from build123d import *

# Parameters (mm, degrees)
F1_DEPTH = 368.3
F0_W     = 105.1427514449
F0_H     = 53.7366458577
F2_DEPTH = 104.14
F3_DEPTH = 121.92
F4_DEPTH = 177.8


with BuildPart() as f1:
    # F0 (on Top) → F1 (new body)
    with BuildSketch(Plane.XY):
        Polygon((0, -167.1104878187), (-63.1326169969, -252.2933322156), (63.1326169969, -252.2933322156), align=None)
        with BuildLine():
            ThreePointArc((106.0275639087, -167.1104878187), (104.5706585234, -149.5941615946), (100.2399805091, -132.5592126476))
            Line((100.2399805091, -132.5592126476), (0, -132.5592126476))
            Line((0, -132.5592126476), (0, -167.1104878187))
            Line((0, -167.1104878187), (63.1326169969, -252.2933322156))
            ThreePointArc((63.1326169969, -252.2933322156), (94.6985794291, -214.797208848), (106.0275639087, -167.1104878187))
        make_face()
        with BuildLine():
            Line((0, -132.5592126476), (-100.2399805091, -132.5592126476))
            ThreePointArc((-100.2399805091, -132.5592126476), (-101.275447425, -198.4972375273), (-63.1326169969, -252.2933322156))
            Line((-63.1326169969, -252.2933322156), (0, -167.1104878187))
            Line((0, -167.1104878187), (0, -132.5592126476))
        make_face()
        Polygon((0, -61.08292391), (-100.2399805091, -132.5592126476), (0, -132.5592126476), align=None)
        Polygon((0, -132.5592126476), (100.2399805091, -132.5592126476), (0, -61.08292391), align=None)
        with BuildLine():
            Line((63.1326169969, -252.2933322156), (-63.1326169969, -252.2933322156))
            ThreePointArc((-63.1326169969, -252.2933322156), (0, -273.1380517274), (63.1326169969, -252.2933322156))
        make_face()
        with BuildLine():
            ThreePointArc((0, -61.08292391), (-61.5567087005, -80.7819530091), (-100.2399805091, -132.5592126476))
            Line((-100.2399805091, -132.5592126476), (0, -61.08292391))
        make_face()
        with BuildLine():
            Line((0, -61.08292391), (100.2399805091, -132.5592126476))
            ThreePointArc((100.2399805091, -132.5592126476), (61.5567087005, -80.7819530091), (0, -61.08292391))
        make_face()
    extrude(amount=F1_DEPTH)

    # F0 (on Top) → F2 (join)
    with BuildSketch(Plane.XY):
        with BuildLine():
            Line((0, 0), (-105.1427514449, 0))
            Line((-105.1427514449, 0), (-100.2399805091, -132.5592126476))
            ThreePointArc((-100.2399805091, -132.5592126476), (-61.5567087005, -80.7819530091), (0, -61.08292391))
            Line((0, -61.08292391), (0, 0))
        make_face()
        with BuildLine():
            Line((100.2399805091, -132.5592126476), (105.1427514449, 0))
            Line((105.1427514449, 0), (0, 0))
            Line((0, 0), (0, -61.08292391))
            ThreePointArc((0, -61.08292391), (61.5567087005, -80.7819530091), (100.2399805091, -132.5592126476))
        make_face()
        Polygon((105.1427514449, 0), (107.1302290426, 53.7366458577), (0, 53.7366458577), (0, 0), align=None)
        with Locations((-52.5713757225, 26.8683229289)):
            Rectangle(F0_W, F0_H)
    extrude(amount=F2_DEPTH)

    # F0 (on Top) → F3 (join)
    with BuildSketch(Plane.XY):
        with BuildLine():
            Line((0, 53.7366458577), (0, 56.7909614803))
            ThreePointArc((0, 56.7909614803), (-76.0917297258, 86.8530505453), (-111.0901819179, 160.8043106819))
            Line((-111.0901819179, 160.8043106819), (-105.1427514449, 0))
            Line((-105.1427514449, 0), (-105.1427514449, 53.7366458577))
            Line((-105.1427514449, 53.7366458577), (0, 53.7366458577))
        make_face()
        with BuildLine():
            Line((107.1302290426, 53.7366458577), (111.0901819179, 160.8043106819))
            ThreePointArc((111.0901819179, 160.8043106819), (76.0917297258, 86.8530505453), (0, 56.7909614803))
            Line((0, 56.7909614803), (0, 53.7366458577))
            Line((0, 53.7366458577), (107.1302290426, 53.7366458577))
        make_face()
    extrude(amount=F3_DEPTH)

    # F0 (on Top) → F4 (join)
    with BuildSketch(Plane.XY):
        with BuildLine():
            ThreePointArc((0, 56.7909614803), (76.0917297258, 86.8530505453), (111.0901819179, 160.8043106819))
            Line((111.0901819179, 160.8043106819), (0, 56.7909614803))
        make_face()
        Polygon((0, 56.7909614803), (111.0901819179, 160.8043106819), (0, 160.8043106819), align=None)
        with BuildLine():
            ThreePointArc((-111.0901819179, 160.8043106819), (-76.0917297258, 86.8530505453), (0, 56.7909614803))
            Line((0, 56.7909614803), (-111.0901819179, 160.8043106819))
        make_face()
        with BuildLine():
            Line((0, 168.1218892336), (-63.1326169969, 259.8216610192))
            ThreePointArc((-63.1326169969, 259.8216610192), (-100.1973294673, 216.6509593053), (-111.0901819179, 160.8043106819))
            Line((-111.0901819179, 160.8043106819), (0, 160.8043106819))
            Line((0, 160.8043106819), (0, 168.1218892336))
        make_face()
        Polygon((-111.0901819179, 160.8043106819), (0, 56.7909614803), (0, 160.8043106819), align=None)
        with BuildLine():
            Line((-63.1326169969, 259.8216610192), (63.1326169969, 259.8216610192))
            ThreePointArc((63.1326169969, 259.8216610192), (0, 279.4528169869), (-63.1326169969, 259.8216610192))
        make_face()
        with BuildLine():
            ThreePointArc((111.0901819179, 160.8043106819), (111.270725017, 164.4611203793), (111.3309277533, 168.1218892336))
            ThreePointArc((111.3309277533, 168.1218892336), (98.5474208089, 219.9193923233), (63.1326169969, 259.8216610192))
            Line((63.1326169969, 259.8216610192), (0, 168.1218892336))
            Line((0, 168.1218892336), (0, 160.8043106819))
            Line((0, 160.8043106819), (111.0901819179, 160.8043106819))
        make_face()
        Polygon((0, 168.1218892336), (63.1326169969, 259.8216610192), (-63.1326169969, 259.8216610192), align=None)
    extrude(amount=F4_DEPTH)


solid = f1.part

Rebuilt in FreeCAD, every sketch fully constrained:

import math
import FreeCAD as App
import Part
import Sketcher
Q = App.Units.Quantity

doc = App.newDocument("Part")
body = doc.addObject("PartDesign::Body", "Body")

sketch1 = doc.addObject("Sketcher::SketchObject", "Sketch")
body.addObject(sketch1)
sketch1.AttachmentSupport = (doc.XY_Plane, [""])
sketch1.MapMode = "FlatFace"
sketch1.addGeometry([
    Part.ArcOfCircle(Part.Circle(App.Vector(0, -167.110488, 0), App.Vector(0, 0, 1), 106.027564), math.radians(-53.456288), math.radians(0)),
    Part.ArcOfCircle(Part.Circle(App.Vector(0, -167.110488, 0), App.Vector(0, 0, 1), 106.027564), math.radians(0), math.radians(19.018334)),
    Part.ArcOfCircle(Part.Circle(App.Vector(0, -167.110488, 0), App.Vector(0, 0, 1), 106.027564), math.radians(19.018334), math.radians(160.981666)),
    Part.ArcOfCircle(Part.Circle(App.Vector(0, -167.110488, 0), App.Vector(0, 0, 1), 106.027564), math.radians(160.981666), math.radians(233.456288)),
    Part.ArcOfCircle(Part.Circle(App.Vector(0, -167.110488, 0), App.Vector(0, 0, 1), 106.027564), math.radians(-126.543712), math.radians(-53.456288)),
], False)
sketch1.addConstraint([
    Sketcher.Constraint("Tangent", 0, 2, 1, 1),
    Sketcher.Constraint("Tangent", 1, 2, 2, 1),
    Sketcher.Constraint("Tangent", 2, 2, 3, 1),
    Sketcher.Constraint("Tangent", 3, 2, 4, 1),
    Sketcher.Constraint("Tangent", 4, 2, 0, 1),
    Sketcher.Constraint("Coincident", 2, 3, 0, 3),
    Sketcher.Constraint("Symmetric", 1, 2, 2, 2, -2),
    Sketcher.Constraint("Horizontal", 4, 3, 0, 2),
    Sketcher.Constraint("Horizontal", 3, 2, 4, 2),
    Sketcher.Constraint("Radius", 0, Q("106.027564 mm")),
    Sketcher.Constraint("DistanceX", -1, 1, 1, 2, Q("100.239981 mm")),
    Sketcher.Constraint("DistanceY", 0, 3, -1, 1, Q("167.110488 mm")),
    Sketcher.Constraint("DistanceX", 3, 2, -1, 1, Q("63.132617 mm")),
])
pad1 = doc.addObject("PartDesign::Pad", "Pad")
body.addObject(pad1)
pad1.Profile = sketch1
pad1.Length = Q("14.5 in")

sketch2 = doc.addObject("Sketcher::SketchObject", "Sketch001")
body.addObject(sketch2)
sketch2.AttachmentSupport = (doc.XY_Plane, [""])
sketch2.MapMode = "FlatFace"
sketch2.addGeometry([
    Part.LineSegment(App.Vector(-105.142751, 0, 0), App.Vector(-100.239981, -132.559213, 0)),
    Part.ArcOfCircle(Part.Circle(App.Vector(0, -167.110488, 0), App.Vector(0, 0, 1), 106.027564), math.radians(19.018334), math.radians(160.981666)),
    Part.LineSegment(App.Vector(100.239981, -132.559213, 0), App.Vector(105.142751, 0, 0)),
    Part.LineSegment(App.Vector(105.142751, 0, 0), App.Vector(107.130229, 53.736646, 0)),
    Part.LineSegment(App.Vector(107.130229, 53.736646, 0), App.Vector(-105.142751, 53.736646, 0)),
    Part.LineSegment(App.Vector(-105.142751, 53.736646, 0), App.Vector(-105.142751, 0, 0)),
], False)
sketch2.addConstraint([
    Sketcher.Constraint("Coincident", 0, 2, 1, 2),
    Sketcher.Constraint("Coincident", 1, 1, 2, 1),
    Sketcher.Constraint("Coincident", 2, 2, 3, 1),
    Sketcher.Constraint("Coincident", 3, 2, 4, 1),
    Sketcher.Constraint("Coincident", 4, 2, 5, 1),
    Sketcher.Constraint("Coincident", 5, 2, 0, 1),
    Sketcher.Constraint("Horizontal", 4),
    Sketcher.Constraint("Vertical", 5),
    Sketcher.Constraint("PointOnObject", 1, 3, -2),
    Sketcher.Constraint("PointOnObject", 2, 2, -1),
    Sketcher.Constraint("PointOnObject", 5, 2, -1),
    Sketcher.Constraint("Radius", 1, Q("106.027564 mm")),
    Sketcher.Constraint("DistanceX", 4, 2, 4, 1, Q("212.27298 mm")),
    Sketcher.Constraint("DistanceY", 5, 2, 5, 1, Q("53.736646 mm")),
    Sketcher.Constraint("DistanceX", 0, 2, -1, 1, Q("100.239981 mm")),
    Sketcher.Constraint("DistanceX", -1, 1, 1, 1, Q("100.239981 mm")),
    Sketcher.Constraint("DistanceX", -1, 1, 2, 2, Q("105.142751 mm")),
    Sketcher.Constraint("DistanceX", -1, 1, 3, 2, Q("107.130229 mm")),
    Sketcher.Constraint("DistanceY", 1, 1, 3, 2, Q("186.295859 mm")),
])
pad2 = doc.addObject("PartDesign::Pad", "Pad001")
body.addObject(pad2)
pad2.Profile = sketch2
pad2.Length = Q("4.1 in")

sketch3 = doc.addObject("Sketcher::SketchObject", "Sketch002")
body.addObject(sketch3)
sketch3.AttachmentSupport = (doc.XY_Plane, [""])
sketch3.MapMode = "FlatFace"
sketch3.addGeometry([
    Part.LineSegment(App.Vector(-111.090182, 160.804311, 0), App.Vector(-105.142751, 0, 0)),
    Part.LineSegment(App.Vector(-105.142751, 0, 0), App.Vector(-105.142751, 53.736646, 0)),
    Part.LineSegment(App.Vector(-105.142751, 53.736646, 0), App.Vector(107.130229, 53.736646, 0)),
    Part.LineSegment(App.Vector(107.130229, 53.736646, 0), App.Vector(111.090182, 160.804311, 0)),
    Part.ArcOfCircle(Part.Circle(App.Vector(0, 168.121889, 0), App.Vector(0, 0, 1), 111.330928), math.radians(-176.231336), math.radians(-3.768664)),
], False)
sketch3.addConstraint([
    Sketcher.Constraint("Coincident", 0, 2, 1, 1),
    Sketcher.Constraint("Coincident", 1, 2, 2, 1),
    Sketcher.Constraint("Coincident", 2, 2, 3, 1),
    Sketcher.Constraint("Coincident", 3, 2, 4, 2),
    Sketcher.Constraint("Coincident", 4, 1, 0, 1),
    Sketcher.Constraint("Vertical", 1),
    Sketcher.Constraint("Horizontal", 2),
    Sketcher.Constraint("Symmetric", 3, 2, 4, 1, -2),
    Sketcher.Constraint("PointOnObject", 0, 2, -1),
    Sketcher.Constraint("Radius", 4, Q("111.330928 mm")),
    Sketcher.Constraint("DistanceX", 2, 1, 2, 2, Q("212.27298 mm")),
    Sketcher.Constraint("Distance", 3, Q("107.14087 mm")),
    Sketcher.Constraint("DistanceY", 1, 1, 1, 2, Q("53.736646 mm")),
    Sketcher.Constraint("DistanceY", -1, 1, 4, 3, Q("168.121889 mm")),
    Sketcher.Constraint("DistanceX", 0, 2, -1, 1, Q("105.142751 mm")),
])
pad3 = doc.addObject("PartDesign::Pad", "Pad002")
body.addObject(pad3)
pad3.Profile = sketch3
pad3.Length = Q("4.8 in")

sketch4 = doc.addObject("Sketcher::SketchObject", "Sketch003")
body.addObject(sketch4)
sketch4.AttachmentSupport = (doc.XY_Plane, [""])
sketch4.MapMode = "FlatFace"
sketch4.addGeometry([
    Part.ArcOfCircle(Part.Circle(App.Vector(0, 168.121889, 0), App.Vector(0, 0, 1), 111.330928), math.radians(-176.231336), math.radians(-3.768664)),
    Part.ArcOfCircle(Part.Circle(App.Vector(0, 168.121889, 0), App.Vector(0, 0, 1), 111.330928), math.radians(-3.768664), math.radians(0)),
    Part.ArcOfCircle(Part.Circle(App.Vector(0, 168.121889, 0), App.Vector(0, 0, 1), 111.330928), math.radians(0), math.radians(55.453723)),
    Part.ArcOfCircle(Part.Circle(App.Vector(0, 168.121889, 0), App.Vector(0, 0, 1), 111.330928), math.radians(55.453723), math.radians(183.768664)),
], False)
sketch4.addConstraint([
    Sketcher.Constraint("Tangent", 0, 2, 1, 1),
    Sketcher.Constraint("Tangent", 1, 2, 2, 1),
    Sketcher.Constraint("Tangent", 2, 2, 3, 1),
    Sketcher.Constraint("Tangent", 3, 2, 0, 1),
    Sketcher.Constraint("Equal", 0, 1),
    Sketcher.Constraint("Symmetric", 0, 2, 3, 2, -2),
    Sketcher.Constraint("Horizontal", 3, 3, 1, 2),
    Sketcher.Constraint("Radius", 0, Q("111.330928 mm")),
    Sketcher.Constraint("DistanceX", 3, 2, 2, 2, Q("174.222799 mm")),
    Sketcher.Constraint("DistanceY", -1, 1, 0, 3, Q("168.121889 mm")),
    Sketcher.Constraint("DistanceX", -1, 1, 0, 2, Q("111.090182 mm")),
])
pad4 = doc.addObject("PartDesign::Pad", "Pad003")
body.addObject(pad4)
pad4.Profile = sketch4
pad4.Length = Q("7 in")

doc.recompute()
